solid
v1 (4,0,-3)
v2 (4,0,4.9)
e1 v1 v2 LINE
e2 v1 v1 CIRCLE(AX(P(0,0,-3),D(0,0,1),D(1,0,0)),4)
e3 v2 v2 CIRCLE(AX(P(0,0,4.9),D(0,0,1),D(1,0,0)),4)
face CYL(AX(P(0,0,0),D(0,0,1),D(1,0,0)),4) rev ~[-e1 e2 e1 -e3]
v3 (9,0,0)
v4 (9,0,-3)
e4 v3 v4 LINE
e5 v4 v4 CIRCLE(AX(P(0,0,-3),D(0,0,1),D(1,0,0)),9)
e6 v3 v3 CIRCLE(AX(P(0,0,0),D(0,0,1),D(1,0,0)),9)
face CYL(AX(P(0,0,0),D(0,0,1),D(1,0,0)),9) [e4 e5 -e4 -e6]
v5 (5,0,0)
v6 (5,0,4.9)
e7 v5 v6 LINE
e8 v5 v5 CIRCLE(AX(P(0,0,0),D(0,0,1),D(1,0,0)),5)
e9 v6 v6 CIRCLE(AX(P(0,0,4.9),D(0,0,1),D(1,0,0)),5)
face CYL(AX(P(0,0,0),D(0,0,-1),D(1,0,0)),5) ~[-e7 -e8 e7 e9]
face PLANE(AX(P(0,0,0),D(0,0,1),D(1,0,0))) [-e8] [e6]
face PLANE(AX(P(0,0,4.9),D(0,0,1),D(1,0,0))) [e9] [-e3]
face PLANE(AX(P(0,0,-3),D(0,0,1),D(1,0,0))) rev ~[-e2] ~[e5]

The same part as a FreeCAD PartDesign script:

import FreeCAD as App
import Part
import Sketcher

V = App.Vector

doc = App.newDocument("Part")
body = doc.addObject("PartDesign::Body", "Body")

# Sketch on XY plane
sketch1 = body.newObject("Sketcher::SketchObject", "Sketch")
sketch1.AttachmentSupport = (doc.getObject("XY_Plane"), [""])
sketch1.MapMode = "FlatFace"
sketch1.addGeometry(Part.Circle(V(0, 0, 0), V(0, 0, 1), 9), False)
sketch1.addConstraint([
    Sketcher.Constraint("Coincident", 0, 3, -1, 1),
    Sketcher.Constraint("Diameter", 0, 18.0),
])
pad1 = body.newObject("PartDesign::Pad", "Pad")
pad1.Profile = sketch1
pad1.Length = 3
pad1.Reversed = True

# Sketch on XY plane
sketch2 = body.newObject("Sketcher::SketchObject", "Sketch001")
sketch2.AttachmentSupport = (doc.getObject("XY_Plane"), [""])
sketch2.MapMode = "FlatFace"
sketch2.addGeometry(Part.Circle(V(0, 0, 0), V(0, 0, 1), 5), False)
sketch2.addConstraint([
    Sketcher.Constraint("Coincident", 0, 3, -1, 1),
    Sketcher.Constraint("Diameter", 0, 10.0),
])
pad2 = body.newObject("PartDesign::Pad", "Pad001")
pad2.Profile = sketch2
pad2.Length = 4.9

# Sketch on XY plane
sketch3 = body.newObject("Sketcher::SketchObject", "Sketch002")
sketch3.AttachmentSupport = (doc.getObject("XY_Plane"), [""])
sketch3.MapMode = "FlatFace"
sketch3.addGeometry(Part.Circle(V(0, 0, 0), V(0, 0, 1), 4), False)
sketch3.addConstraint([
    Sketcher.Constraint("Coincident", 0, 3, -1, 1),
    Sketcher.Constraint("Diameter", 0, 8.0),
])
pocket1 = body.newObject("PartDesign::Pocket", "Pocket")
pocket1.Profile = sketch3
pocket1.Length = 30
pocket1.Midplane = True

doc.recompute()
